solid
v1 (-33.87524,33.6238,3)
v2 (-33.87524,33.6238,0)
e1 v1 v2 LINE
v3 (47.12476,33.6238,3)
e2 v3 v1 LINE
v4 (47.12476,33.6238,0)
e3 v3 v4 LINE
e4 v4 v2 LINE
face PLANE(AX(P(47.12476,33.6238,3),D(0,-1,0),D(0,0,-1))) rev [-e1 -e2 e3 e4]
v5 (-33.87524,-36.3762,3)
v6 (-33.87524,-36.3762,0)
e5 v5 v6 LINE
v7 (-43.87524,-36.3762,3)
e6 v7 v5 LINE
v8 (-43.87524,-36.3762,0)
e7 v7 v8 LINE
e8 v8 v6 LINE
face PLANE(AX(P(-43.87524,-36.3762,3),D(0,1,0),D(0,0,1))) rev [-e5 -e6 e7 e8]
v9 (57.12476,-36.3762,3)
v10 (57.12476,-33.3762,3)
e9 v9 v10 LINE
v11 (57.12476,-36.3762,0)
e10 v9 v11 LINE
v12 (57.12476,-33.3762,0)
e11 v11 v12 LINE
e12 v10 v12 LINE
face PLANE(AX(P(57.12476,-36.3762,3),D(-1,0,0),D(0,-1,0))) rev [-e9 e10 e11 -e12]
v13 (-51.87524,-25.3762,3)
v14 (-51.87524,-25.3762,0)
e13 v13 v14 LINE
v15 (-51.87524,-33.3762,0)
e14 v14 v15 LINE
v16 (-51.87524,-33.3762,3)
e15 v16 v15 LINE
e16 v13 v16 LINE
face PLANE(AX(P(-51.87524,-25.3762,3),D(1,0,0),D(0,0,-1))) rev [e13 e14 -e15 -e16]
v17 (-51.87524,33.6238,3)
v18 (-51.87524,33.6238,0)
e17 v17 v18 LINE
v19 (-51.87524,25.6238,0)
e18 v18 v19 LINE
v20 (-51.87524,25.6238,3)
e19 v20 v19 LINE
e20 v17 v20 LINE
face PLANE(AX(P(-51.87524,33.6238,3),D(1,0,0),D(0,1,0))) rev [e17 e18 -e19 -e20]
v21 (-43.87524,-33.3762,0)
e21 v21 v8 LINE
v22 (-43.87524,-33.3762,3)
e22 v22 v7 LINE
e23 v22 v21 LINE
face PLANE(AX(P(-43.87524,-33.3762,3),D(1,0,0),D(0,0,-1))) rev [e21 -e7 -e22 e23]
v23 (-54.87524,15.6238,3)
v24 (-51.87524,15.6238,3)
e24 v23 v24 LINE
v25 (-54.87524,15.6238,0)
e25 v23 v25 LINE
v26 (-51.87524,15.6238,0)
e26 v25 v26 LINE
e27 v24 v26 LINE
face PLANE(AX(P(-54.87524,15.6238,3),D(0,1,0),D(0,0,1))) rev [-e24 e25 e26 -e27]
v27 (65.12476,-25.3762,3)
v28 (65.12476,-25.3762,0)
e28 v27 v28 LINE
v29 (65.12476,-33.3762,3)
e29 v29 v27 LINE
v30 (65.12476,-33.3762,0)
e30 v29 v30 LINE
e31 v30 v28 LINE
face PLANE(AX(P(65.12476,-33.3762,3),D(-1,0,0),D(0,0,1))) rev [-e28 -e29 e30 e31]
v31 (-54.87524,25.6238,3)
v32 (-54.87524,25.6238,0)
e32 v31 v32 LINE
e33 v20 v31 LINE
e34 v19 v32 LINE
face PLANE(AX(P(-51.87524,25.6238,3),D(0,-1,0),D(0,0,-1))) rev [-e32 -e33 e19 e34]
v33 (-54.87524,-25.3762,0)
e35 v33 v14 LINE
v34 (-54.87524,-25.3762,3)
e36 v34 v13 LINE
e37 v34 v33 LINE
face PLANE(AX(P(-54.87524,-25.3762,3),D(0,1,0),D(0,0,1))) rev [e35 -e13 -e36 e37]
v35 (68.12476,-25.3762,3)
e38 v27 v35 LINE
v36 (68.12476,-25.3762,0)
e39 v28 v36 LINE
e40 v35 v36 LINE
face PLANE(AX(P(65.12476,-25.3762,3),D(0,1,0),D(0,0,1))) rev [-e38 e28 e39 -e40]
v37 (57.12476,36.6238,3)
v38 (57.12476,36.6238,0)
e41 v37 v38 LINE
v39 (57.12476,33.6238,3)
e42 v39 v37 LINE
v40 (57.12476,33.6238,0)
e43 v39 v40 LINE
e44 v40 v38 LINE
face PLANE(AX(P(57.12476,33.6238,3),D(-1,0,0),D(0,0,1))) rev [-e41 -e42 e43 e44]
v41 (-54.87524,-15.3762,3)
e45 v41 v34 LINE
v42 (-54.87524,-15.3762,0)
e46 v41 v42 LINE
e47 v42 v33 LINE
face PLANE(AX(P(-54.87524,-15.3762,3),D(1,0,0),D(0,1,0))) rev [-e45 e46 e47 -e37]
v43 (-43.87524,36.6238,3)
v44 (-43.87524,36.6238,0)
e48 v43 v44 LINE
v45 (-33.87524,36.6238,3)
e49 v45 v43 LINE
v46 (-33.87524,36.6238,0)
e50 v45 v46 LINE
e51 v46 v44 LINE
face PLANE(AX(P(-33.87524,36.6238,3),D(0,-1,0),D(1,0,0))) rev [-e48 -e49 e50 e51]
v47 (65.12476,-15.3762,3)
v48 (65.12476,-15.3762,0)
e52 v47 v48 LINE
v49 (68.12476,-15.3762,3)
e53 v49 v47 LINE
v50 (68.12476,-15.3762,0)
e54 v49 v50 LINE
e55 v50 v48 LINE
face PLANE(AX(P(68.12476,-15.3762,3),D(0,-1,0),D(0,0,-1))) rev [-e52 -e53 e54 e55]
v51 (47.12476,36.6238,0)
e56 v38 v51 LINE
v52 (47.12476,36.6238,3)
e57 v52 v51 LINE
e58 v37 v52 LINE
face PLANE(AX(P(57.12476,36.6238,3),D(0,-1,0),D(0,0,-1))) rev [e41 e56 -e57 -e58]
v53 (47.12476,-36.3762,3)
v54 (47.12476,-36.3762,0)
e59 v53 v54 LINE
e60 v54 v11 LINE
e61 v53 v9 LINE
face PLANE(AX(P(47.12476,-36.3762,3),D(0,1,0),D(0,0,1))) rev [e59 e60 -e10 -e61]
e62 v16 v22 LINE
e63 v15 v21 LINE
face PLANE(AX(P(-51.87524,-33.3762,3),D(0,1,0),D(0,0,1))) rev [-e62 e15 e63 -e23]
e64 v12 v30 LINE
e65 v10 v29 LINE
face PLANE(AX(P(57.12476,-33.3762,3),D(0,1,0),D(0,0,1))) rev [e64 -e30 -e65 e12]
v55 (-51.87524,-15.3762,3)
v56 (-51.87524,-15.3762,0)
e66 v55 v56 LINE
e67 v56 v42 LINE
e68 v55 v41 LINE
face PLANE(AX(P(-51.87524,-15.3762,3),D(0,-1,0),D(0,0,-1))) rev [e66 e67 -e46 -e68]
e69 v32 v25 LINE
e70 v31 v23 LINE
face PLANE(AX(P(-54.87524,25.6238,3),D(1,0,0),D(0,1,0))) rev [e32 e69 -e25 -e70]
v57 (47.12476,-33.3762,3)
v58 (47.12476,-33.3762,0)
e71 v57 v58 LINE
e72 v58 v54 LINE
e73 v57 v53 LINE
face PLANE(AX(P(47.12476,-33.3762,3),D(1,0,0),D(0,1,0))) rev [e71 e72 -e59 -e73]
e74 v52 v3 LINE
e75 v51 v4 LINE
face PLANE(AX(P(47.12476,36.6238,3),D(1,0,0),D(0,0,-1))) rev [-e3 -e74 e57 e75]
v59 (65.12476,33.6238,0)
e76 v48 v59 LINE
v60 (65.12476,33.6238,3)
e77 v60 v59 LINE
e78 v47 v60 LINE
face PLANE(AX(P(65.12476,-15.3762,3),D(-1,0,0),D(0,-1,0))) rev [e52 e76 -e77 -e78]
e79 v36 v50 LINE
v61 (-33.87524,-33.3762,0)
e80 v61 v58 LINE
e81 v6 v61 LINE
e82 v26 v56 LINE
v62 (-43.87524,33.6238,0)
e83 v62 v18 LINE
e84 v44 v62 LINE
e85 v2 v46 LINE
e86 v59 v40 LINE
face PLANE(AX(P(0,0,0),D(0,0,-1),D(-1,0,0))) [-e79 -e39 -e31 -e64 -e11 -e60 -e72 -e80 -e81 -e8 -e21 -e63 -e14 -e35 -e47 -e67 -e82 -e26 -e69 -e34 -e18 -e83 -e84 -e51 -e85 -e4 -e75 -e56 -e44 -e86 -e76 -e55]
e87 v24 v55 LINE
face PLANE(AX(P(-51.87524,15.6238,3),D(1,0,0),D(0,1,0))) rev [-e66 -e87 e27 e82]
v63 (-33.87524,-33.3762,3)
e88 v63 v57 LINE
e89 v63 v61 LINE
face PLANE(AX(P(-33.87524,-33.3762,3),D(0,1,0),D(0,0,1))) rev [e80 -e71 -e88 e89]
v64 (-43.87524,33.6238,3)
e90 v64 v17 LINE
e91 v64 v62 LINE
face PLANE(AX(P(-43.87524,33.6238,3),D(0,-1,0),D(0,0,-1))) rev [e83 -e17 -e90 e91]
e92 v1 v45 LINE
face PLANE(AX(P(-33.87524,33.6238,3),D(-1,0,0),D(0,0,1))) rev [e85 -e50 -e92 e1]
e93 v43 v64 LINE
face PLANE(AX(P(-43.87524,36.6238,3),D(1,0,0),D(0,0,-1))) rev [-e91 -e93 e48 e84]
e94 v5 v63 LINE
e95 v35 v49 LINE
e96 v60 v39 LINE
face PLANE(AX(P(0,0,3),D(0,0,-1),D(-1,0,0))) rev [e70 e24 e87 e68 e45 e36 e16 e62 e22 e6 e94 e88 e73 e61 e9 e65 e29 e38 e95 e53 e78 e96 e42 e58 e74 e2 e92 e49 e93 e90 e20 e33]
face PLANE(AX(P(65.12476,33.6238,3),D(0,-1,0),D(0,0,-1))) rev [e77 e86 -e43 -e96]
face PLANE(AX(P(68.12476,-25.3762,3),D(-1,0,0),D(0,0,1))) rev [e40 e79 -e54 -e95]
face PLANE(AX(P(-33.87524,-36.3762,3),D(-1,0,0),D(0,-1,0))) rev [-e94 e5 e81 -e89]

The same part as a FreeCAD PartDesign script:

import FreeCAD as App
import Part
import Sketcher

V = App.Vector


def add_polygon(sketch, points):
    """Adds a closed chain of lines whose ends are joined by coincident constraints."""
    first, n = sketch.GeometryCount, len(points)
    for a, b in zip(points, points[1:] + points[:1]):
        sketch.addGeometry(Part.LineSegment(App.Vector(*a, 0), App.Vector(*b, 0)), False)
    for i in range(n):
        sketch.addConstraint(Sketcher.Constraint("Coincident", first + i, 2, first + (i + 1) % n, 1))

doc = App.newDocument("Part")
body = doc.addObject("PartDesign::Body", "Body")

sketch1 = body.newObject("Sketcher::SketchObject", "Sketch")
sketch1.AttachmentSupport = (doc.getObject("XY_Plane"), [""])
sketch1.MapMode = "FlatFace"
add_polygon(sketch1, [(65.1, 33.6), (57.1, 33.6), (57.1, 36.6), (47.1, 36.6), (47.1, 33.6), (-33.9, 33.6), (-33.9, 36.6), (-43.9, 36.6), (-43.9, 33.6), (-51.9, 33.6), (-51.9, 25.6), (-54.9, 25.6), (-54.9, 15.6), (-51.9, 15.6), (-51.9, -15.4), (-54.9, -15.4), (-54.9, -25.4), (-51.9, -25.4), (-51.9, -33.4), (-43.9, -33.4), (-43.9, -36.4), (-33.9, -36.4), (-33.9, -33.4), (47.1, -33.4), (47.1, -36.4), (57.1, -36.4), (57.1, -33.4), (65.1, -33.4), (65.1, -25.4), (68.1, -25.4), (68.1, -15.4), (65.1, -15.4)])
sketch1.addConstraint(Sketcher.Constraint("Horizontal", 0))
sketch1.addConstraint(Sketcher.Constraint("Vertical", 1))
sketch1.addConstraint(Sketcher.Constraint("Horizontal", 2))
sketch1.addConstraint(Sketcher.Constraint("Vertical", 3))
sketch1.addConstraint(Sketcher.Constraint("Horizontal", 4))
sketch1.addConstraint(Sketcher.Constraint("Vertical", 5))
sketch1.addConstraint(Sketcher.Constraint("Horizontal", 6))
sketch1.addConstraint(Sketcher.Constraint("Vertical", 7))
sketch1.addConstraint(Sketcher.Constraint("Horizontal", 8))
sketch1.addConstraint(Sketcher.Constraint("Vertical", 9))
sketch1.addConstraint(Sketcher.Constraint("Horizontal", 10))
sketch1.addConstraint(Sketcher.Constraint("Vertical", 11))
sketch1.addConstraint(Sketcher.Constraint("Horizontal", 12))
sketch1.addConstraint(Sketcher.Constraint("Vertical", 13))
sketch1.addConstraint(Sketcher.Constraint("Horizontal", 14))
sketch1.addConstraint(Sketcher.Constraint("Vertical", 15))
sketch1.addConstraint(Sketcher.Constraint("Horizontal", 16))
sketch1.addConstraint(Sketcher.Constraint("Vertical", 17))
sketch1.addConstraint(Sketcher.Constraint("Horizontal", 18))
sketch1.addConstraint(Sketcher.Constraint("Vertical", 19))
sketch1.addConstraint(Sketcher.Constraint("Horizontal", 20))
sketch1.addConstraint(Sketcher.Constraint("Vertical", 21))
sketch1.addConstraint(Sketcher.Constraint("Horizontal", 22))
sketch1.addConstraint(Sketcher.Constraint("Vertical", 23))
sketch1.addConstraint(Sketcher.Constraint("Horizontal", 24))
sketch1.addConstraint(Sketcher.Constraint("Vertical", 25))
sketch1.addConstraint(Sketcher.Constraint("Horizontal", 26))
sketch1.addConstraint(Sketcher.Constraint("Vertical", 27))
sketch1.addConstraint(Sketcher.Constraint("Horizontal", 28))
sketch1.addConstraint(Sketcher.Constraint("Vertical", 29))
sketch1.addConstraint(Sketcher.Constraint("Horizontal", 30))
sketch1.addConstraint(Sketcher.Constraint("Vertical", 31))
sketch1.addConstraint(Sketcher.Constraint("Horizontal", 0, 2, 3, 2))
sketch1.addConstraint(Sketcher.Constraint("Horizontal", 2, 2, 5, 2))
sketch1.addConstraint(Sketcher.Constraint("Horizontal", 4, 2, 7, 2))
sketch1.addConstraint(Sketcher.Constraint("Horizontal", 18, 2, 21, 2))
sketch1.addConstraint(Sketcher.Constraint("Horizontal", 20, 2, 23, 2))
sketch1.addConstraint(Sketcher.Constraint("Horizontal", 22, 2, 25, 2))
sketch1.addConstraint(Sketcher.Constraint("Horizontal", 16, 2, 27, 2))
sketch1.addConstraint(Sketcher.Constraint("Horizontal", 14, 2, 29, 2))
sketch1.addConstraint(Sketcher.Constraint("Vertical", 9, 2, 12, 2))
sketch1.addConstraint(Sketcher.Constraint("Vertical", 11, 2, 14, 2))
sketch1.addConstraint(Sketcher.Constraint("Vertical", 13, 2, 16, 2))
sketch1.addConstraint(Sketcher.Constraint("Vertical", 7, 2, 18, 2))
sketch1.addConstraint(Sketcher.Constraint("Vertical", 5, 2, 20, 2))
sketch1.addConstraint(Sketcher.Constraint("Vertical", 3, 2, 22, 2))
sketch1.addConstraint(Sketcher.Constraint("Vertical", 1, 2, 24, 2))
sketch1.addConstraint(Sketcher.Constraint("Vertical", 27, 2, 30, 2))
sketch1.addConstraint(Sketcher.Constraint("Equal", 2, 6))
sketch1.addConstraint(Sketcher.Constraint("Equal", 0, 8))
sketch1.addConstraint(Sketcher.Constraint("Equal", 16, 28))
sketch1.addConstraint(Sketcher.Constraint("Equal", 30, 1))
sketch1.addConstraint(Sketcher.Constraint("Equal", 26, 9))
sketch1.addConstraint(Sketcher.Constraint("Equal", 24, 11))
sketch1.addConstraint(Sketcher.Constraint("Equal", 11, 15))
sketch1.addConstraint(Sketcher.Constraint("Equal", 9, 17))
sketch1.addConstraint(Sketcher.Constraint("Equal", 7, 19))
sketch1.addConstraint(Sketcher.Constraint("DistanceX", 0, 2, 0, 1, 8.0))
sketch1.addConstraint(Sketcher.Constraint("DistanceX", 2, 2, 2, 1, 10.0))
sketch1.addConstraint(Sketcher.Constraint("DistanceX", 4, 2, 4, 1, 81.0))
sketch1.addConstraint(Sketcher.Constraint("DistanceX", 10, 2, 10, 1, 3.0))
sketch1.addConstraint(Sketcher.Constraint("DistanceY", 13, 2, 13, 1, 31.0))
sketch1.addConstraint(Sketcher.Constraint("DistanceY", -1, 1, 0, 2, 33.6238))
sketch1.addConstraint(Sketcher.Constraint("DistanceX", -1, 1, 0, 2, 57.12476))
pad1 = body.newObject("PartDesign::Pad", "Pad")
pad1.Profile = sketch1
pad1.Length = 3

doc.recompute()
